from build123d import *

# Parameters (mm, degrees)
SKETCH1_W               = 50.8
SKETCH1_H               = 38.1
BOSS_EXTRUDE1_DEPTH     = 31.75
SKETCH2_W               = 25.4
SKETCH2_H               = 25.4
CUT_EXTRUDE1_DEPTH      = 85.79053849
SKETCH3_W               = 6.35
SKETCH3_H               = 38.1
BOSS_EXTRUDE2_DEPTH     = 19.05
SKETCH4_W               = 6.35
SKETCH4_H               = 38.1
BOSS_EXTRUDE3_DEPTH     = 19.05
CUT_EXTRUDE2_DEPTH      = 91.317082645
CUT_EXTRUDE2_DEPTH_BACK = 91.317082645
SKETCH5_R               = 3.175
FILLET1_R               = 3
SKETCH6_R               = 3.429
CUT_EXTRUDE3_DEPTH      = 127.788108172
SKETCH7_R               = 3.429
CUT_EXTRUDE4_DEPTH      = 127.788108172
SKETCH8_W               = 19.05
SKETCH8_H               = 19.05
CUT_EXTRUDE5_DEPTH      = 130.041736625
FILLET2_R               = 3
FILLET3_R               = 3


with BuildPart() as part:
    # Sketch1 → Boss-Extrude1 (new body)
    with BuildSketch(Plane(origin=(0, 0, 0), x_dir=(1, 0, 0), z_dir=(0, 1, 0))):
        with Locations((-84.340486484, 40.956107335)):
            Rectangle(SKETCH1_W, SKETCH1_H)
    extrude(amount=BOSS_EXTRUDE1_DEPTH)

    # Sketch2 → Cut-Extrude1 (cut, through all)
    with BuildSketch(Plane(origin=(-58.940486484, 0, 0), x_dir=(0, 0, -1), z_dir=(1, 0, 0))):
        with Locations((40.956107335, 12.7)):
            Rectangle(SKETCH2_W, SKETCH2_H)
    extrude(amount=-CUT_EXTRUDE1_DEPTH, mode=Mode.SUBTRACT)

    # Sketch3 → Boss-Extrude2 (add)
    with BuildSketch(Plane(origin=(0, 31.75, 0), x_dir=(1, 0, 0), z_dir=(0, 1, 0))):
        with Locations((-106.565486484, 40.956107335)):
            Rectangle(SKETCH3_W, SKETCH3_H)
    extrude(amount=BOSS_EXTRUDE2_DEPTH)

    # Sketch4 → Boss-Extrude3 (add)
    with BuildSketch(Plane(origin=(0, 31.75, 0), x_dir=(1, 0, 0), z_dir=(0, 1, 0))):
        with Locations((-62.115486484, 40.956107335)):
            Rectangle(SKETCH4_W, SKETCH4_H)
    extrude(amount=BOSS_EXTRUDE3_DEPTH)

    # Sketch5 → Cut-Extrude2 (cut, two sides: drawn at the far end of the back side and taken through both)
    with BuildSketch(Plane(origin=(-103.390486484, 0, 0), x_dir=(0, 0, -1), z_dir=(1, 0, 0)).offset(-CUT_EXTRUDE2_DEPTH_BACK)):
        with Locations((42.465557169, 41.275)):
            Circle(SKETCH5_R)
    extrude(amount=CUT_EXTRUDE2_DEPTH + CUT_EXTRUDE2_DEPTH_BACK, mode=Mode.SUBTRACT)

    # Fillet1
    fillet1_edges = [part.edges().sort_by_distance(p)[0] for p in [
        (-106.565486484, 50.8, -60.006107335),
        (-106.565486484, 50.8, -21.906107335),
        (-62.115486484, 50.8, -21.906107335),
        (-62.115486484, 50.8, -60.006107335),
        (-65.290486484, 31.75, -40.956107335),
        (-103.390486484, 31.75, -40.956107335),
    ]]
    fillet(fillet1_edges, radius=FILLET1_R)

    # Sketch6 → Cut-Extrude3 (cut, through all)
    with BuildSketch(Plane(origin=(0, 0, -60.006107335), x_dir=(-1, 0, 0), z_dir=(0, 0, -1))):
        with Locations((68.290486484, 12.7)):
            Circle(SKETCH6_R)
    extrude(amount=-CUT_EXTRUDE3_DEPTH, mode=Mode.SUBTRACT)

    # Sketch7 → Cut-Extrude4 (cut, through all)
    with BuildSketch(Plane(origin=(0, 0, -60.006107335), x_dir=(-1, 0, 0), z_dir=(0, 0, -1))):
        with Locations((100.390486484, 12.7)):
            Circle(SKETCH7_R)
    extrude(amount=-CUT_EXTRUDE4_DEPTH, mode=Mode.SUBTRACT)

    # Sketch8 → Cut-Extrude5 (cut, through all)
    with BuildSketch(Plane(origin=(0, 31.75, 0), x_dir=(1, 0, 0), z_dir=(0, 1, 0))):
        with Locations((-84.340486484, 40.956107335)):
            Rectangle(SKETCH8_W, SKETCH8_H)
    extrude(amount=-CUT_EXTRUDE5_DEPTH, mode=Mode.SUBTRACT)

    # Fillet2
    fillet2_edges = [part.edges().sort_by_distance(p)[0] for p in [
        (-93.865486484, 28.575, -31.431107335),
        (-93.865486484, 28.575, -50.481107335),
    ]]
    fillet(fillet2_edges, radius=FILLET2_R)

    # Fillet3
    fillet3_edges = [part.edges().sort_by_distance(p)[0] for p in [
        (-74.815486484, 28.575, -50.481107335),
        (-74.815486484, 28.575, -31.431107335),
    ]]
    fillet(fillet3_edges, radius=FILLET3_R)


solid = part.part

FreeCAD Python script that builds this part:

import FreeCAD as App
import Part
import Sketcher
Q = App.Units.Quantity


def edges_at(feature, points):
    """Names of the edges that pass closest to the given points."""
    edges = feature.Shape.Edges
    near = lambda p: min(range(len(edges)), key=lambda i: edges[i].distToShape(Part.Vertex(*p))[0])
    return sorted({f"Edge{near(p) + 1}" for p in points})

doc = App.newDocument("Part")
body = doc.addObject("PartDesign::Body", "Body")

sketch1 = body.newObject("Sketcher::SketchObject", "Sketch")
sketch1.AttachmentSupport = (doc.getObject("XZ_Plane"), [""])
sketch1.MapMode = "FlatFace"
sketch1.addGeometry([
    Part.LineSegment(App.Vector(-110, -60, 0), App.Vector(-110, -22, 0)),
    Part.LineSegment(App.Vector(-110, -22, 0), App.Vector(-59, -22, 0)),
    Part.LineSegment(App.Vector(-59, -22, 0), App.Vector(-59, -60, 0)),
    Part.LineSegment(App.Vector(-59, -60, 0), App.Vector(-110, -60, 0)),
], False)
sketch1.addConstraint([
    Sketcher.Constraint("Coincident", 0, 2, 1, 1),
    Sketcher.Constraint("Coincident", 1, 2, 2, 1),
    Sketcher.Constraint("Coincident", 2, 2, 3, 1),
    Sketcher.Constraint("Coincident", 3, 2, 0, 1),
    Sketcher.Constraint("Vertical", 0),
    Sketcher.Constraint("Horizontal", 1),
    Sketcher.Constraint("Vertical", 2),
    Sketcher.Constraint("Horizontal", 3),
    Sketcher.Constraint("DistanceX", 1, 1, 1, 2, Q("2 in")),
    Sketcher.Constraint("DistanceY", 0, 1, 0, 2, Q("1.5 in")),
    Sketcher.Constraint("DistanceX", 0, 2, -1, 1, 109.740486),
    Sketcher.Constraint("DistanceY", 0, 2, -1, 1, 21.906107),
])
pad1 = body.newObject("PartDesign::Pad", "Pad")
pad1.Profile = sketch1
pad1.Length = Q("1.25 in")
pad1.Reversed = True

sketch2 = body.newObject("Sketcher::SketchObject", "Sketch001")
sketch2.AttachmentSupport = (doc.getObject("YZ_Plane"), [""])
sketch2.MapMode = "FlatFace"
sketch2.AttachmentOffset = App.Placement(App.Vector(0, 0, -58.940486), App.Rotation())
sketch2.addGeometry([
    Part.LineSegment(App.Vector(25, -28, 0), App.Vector(0, -28, 0)),
    Part.LineSegment(App.Vector(0, -28, 0), App.Vector(0, -54, 0)),
    Part.LineSegment(App.Vector(0, -54, 0), App.Vector(25, -54, 0)),
    Part.LineSegment(App.Vector(25, -54, 0), App.Vector(25, -28, 0)),
], False)
sketch2.addConstraint([
    Sketcher.Constraint("Coincident", 0, 2, 1, 1),
    Sketcher.Constraint("Coincident", 1, 2, 2, 1),
    Sketcher.Constraint("Coincident", 2, 2, 3, 1),
    Sketcher.Constraint("Coincident", 3, 2, 0, 1),
    Sketcher.Constraint("Horizontal", 0),
    Sketcher.Constraint("Vertical", 1),
    Sketcher.Constraint("Horizontal", 2),
    Sketcher.Constraint("Vertical", 3),
    Sketcher.Constraint("PointOnObject", 0, 2, -2),
    Sketcher.Constraint("Equal", 2, 1),
    Sketcher.Constraint("DistanceX", 0, 2, 0, 1, Q("1 in")),
    Sketcher.Constraint("DistanceY", 0, 2, -1, 1, 28.256107),
])
pocket1 = body.newObject("PartDesign::Pocket", "Pocket")
pocket1.Profile = sketch2
pocket1.Type = "ThroughAll"

sketch3 = body.newObject("Sketcher::SketchObject", "Sketch002")
sketch3.AttachmentSupport = (doc.getObject("XZ_Plane"), [""])
sketch3.MapMode = "FlatFace"
sketch3.AttachmentOffset = App.Placement(App.Vector(0, 0, -1.25 * 25.4), App.Rotation())
sketch3.addGeometry([
    Part.LineSegment(App.Vector(-110, -60, 0), App.Vector(-110, -22, 0)),
    Part.LineSegment(App.Vector(-110, -22, 0), App.Vector(-103, -22, 0)),
    Part.LineSegment(App.Vector(-103, -22, 0), App.Vector(-103, -60, 0)),
    Part.LineSegment(App.Vector(-103, -60, 0), App.Vector(-110, -60, 0)),
], False)
sketch3.addConstraint([
    Sketcher.Constraint("Coincident", 0, 2, 1, 1),
    Sketcher.Constraint("Coincident", 1, 2, 2, 1),
    Sketcher.Constraint("Coincident", 2, 2, 3, 1),
    Sketcher.Constraint("Coincident", 3, 2, 0, 1),
    Sketcher.Constraint("Vertical", 0),
    Sketcher.Constraint("Horizontal", 1),
    Sketcher.Constraint("Vertical", 2),
    Sketcher.Constraint("Horizontal", 3),
    Sketcher.Constraint("DistanceY", 0, 1, 0, 2, Q("1.5 in")),
    Sketcher.Constraint("DistanceX", 1, 1, 1, 2, Q("0.25 in")),
    Sketcher.Constraint("DistanceX", 0, 2, -1, 1, 109.740486),
    Sketcher.Constraint("DistanceY", 0, 2, -1, 1, 21.906107),
])
pad2 = body.newObject("PartDesign::Pad", "Pad001")
pad2.Profile = sketch3
pad2.Length = Q("0.75 in")
pad2.Reversed = True

sketch4 = body.newObject("Sketcher::SketchObject", "Sketch003")
sketch4.AttachmentSupport = (doc.getObject("XZ_Plane"), [""])
sketch4.MapMode = "FlatFace"
sketch4.AttachmentOffset = App.Placement(App.Vector(0, 0, -1.25 * 25.4), App.Rotation())
sketch4.addGeometry([
    Part.LineSegment(App.Vector(-65, -60, 0), App.Vector(-65, -22, 0)),
    Part.LineSegment(App.Vector(-65, -22, 0), App.Vector(-59, -22, 0)),
    Part.LineSegment(App.Vector(-59, -22, 0), App.Vector(-59, -60, 0)),
    Part.LineSegment(App.Vector(-59, -60, 0), App.Vector(-65, -60, 0)),
], False)
sketch4.addConstraint([
    Sketcher.Constraint("Coincident", 0, 2, 1, 1),
    Sketcher.Constraint("Coincident", 1, 2, 2, 1),
    Sketcher.Constraint("Coincident", 2, 2, 3, 1),
    Sketcher.Constraint("Coincident", 3, 2, 0, 1),
    Sketcher.Constraint("Vertical", 0),
    Sketcher.Constraint("Horizontal", 1),
    Sketcher.Constraint("Vertical", 2),
    Sketcher.Constraint("Horizontal", 3),
    Sketcher.Constraint("DistanceY", 0, 1, 0, 2, Q("1.5 in")),
    Sketcher.Constraint("DistanceX", 1, 1, 1, 2, Q("0.25 in")),
    Sketcher.Constraint("DistanceX", 0, 2, -1, 1, 65.290486),
    Sketcher.Constraint("DistanceY", 0, 2, -1, 1, 21.906107),
])
pad3 = body.newObject("PartDesign::Pad", "Pad002")
pad3.Profile = sketch4
pad3.Length = Q("0.75 in")
pad3.Reversed = True

sketch5 = body.newObject("Sketcher::SketchObject", "Sketch004")
sketch5.AttachmentSupport = (doc.getObject("YZ_Plane"), [""])
sketch5.MapMode = "FlatFace"
sketch5.AttachmentOffset = App.Placement(App.Vector(0, 0, -103.390486), App.Rotation())
sketch5.addGeometry(Part.Circle(App.Vector(41.3, -42.5, 0), App.Vector(0, 0, 1), 3.2), False)
sketch5.addConstraint([
    Sketcher.Constraint("Diameter", 0, Q("0.25 in")),
    Sketcher.Constraint("DistanceX", -1, 1, 0, 3, Q("1.625 in")),
    Sketcher.Constraint("DistanceY", 0, 3, -1, 1, 42.465557),
])
pocket2 = body.newObject("PartDesign::Pocket", "Pocket001")
pocket2.Profile = sketch5
pocket2.Type = "ThroughAll"
pocket2.Midplane = True
doc.recompute()

fillet = body.newObject("PartDesign::Fillet", "Fillet")
fillet.Base = (pocket2, edges_at(pocket2, [
    (-106.565, 50.8, -60.006),
    (-106.565, 50.8, -21.906),
    (-62.115, 50.8, -21.906),
    (-62.115, 50.8, -60.006),
    (-65.29, 31.75, -40.956),
    (-103.39, 31.75, -40.956),
]))
fillet.Radius = 3

sketch6 = body.newObject("Sketcher::SketchObject", "Sketch005")
sketch6.AttachmentSupport = (doc.getObject("XY_Plane"), [""])
sketch6.MapMode = "FlatFace"
sketch6.AttachmentOffset = App.Placement(App.Vector(0, 0, -60.006107), App.Rotation())
sketch6.addGeometry(Part.Circle(App.Vector(-68.3, 12.7, 0), App.Vector(0, 0, 1), 3.4), False)
sketch6.addConstraint([
    Sketcher.Constraint("Diameter", 0, Q("0.27 in")),
    Sketcher.Constraint("DistanceY", -1, 1, 0, 3, Q("0.5 in")),
    Sketcher.Constraint("DistanceX", 0, 3, -1, 1, 68.290486),
])
pocket3 = body.newObject("PartDesign::Pocket", "Pocket002")
pocket3.Profile = sketch6
pocket3.Type = "ThroughAll"
pocket3.Reversed = True

sketch7 = body.newObject("Sketcher::SketchObject", "Sketch006")
sketch7.AttachmentSupport = (doc.getObject("XY_Plane"), [""])
sketch7.MapMode = "FlatFace"
sketch7.AttachmentOffset = App.Placement(App.Vector(0, 0, -60.006107), App.Rotation())
sketch7.addGeometry(Part.Circle(App.Vector(-100.4, 12.7, 0), App.Vector(0, 0, 1), 3.4), False)
sketch7.addConstraint([
    Sketcher.Constraint("Diameter", 0, Q("0.27 in")),
    Sketcher.Constraint("DistanceY", -1, 1, 0, 3, Q("0.5 in")),
    Sketcher.Constraint("DistanceX", 0, 3, -1, 1, 100.390486),
])
pocket4 = body.newObject("PartDesign::Pocket", "Pocket003")
pocket4.Profile = sketch7
pocket4.Type = "ThroughAll"
pocket4.Reversed = True

sketch8 = body.newObject("Sketcher::SketchObject", "Sketch007")
sketch8.AttachmentSupport = (doc.getObject("XZ_Plane"), [""])
sketch8.MapMode = "FlatFace"
sketch8.AttachmentOffset = App.Placement(App.Vector(0, 0, -1.25 * 25.4), App.Rotation())
sketch8.addGeometry([
    Part.LineSegment(App.Vector(-94, -50, 0), App.Vector(-94, -31, 0)),
    Part.LineSegment(App.Vector(-94, -31, 0), App.Vector(-75, -31, 0)),
    Part.LineSegment(App.Vector(-75, -31, 0), App.Vector(-75, -50, 0)),
    Part.LineSegment(App.Vector(-75, -50, 0), App.Vector(-94, -50, 0)),
], False)
sketch8.addConstraint([
    Sketcher.Constraint("Coincident", 0, 2, 1, 1),
    Sketcher.Constraint("Coincident", 1, 2, 2, 1),
    Sketcher.Constraint("Coincident", 2, 2, 3, 1),
    Sketcher.Constraint("Coincident", 3, 2, 0, 1),
    Sketcher.Constraint("Vertical", 0),
    Sketcher.Constraint("Horizontal", 1),
    Sketcher.Constraint("Vertical", 2),
    Sketcher.Constraint("Horizontal", 3),
    Sketcher.Constraint("Equal", 3, 0),
    Sketcher.Constraint("DistanceX", 1, 1, 1, 2, Q("0.75 in")),
    Sketcher.Constraint("DistanceX", 0, 2, -1, 1, 93.865486),
    Sketcher.Constraint("DistanceY", 0, 2, -1, 1, 31.431107),
])
pocket5 = body.newObject("PartDesign::Pocket", "Pocket004")
pocket5.Profile = sketch8
pocket5.Type = "ThroughAll"
pocket5.Reversed = True
doc.recompute()

fillet2 = body.newObject("PartDesign::Fillet", "Fillet001")
fillet2.Base = (pocket5, edges_at(pocket5, [(-93.865, 28.575, -31.431), (-93.865, 28.575, -50.481)]))
fillet2.Radius = 3
doc.recompute()

fillet3 = body.newObject("PartDesign::Fillet", "Fillet002")
fillet3.Base = (fillet2, edges_at(fillet2, [(-74.815, 28.575, -50.481), (-74.815, 28.575, -31.431)]))
fillet3.Radius = 3

doc.recompute()
